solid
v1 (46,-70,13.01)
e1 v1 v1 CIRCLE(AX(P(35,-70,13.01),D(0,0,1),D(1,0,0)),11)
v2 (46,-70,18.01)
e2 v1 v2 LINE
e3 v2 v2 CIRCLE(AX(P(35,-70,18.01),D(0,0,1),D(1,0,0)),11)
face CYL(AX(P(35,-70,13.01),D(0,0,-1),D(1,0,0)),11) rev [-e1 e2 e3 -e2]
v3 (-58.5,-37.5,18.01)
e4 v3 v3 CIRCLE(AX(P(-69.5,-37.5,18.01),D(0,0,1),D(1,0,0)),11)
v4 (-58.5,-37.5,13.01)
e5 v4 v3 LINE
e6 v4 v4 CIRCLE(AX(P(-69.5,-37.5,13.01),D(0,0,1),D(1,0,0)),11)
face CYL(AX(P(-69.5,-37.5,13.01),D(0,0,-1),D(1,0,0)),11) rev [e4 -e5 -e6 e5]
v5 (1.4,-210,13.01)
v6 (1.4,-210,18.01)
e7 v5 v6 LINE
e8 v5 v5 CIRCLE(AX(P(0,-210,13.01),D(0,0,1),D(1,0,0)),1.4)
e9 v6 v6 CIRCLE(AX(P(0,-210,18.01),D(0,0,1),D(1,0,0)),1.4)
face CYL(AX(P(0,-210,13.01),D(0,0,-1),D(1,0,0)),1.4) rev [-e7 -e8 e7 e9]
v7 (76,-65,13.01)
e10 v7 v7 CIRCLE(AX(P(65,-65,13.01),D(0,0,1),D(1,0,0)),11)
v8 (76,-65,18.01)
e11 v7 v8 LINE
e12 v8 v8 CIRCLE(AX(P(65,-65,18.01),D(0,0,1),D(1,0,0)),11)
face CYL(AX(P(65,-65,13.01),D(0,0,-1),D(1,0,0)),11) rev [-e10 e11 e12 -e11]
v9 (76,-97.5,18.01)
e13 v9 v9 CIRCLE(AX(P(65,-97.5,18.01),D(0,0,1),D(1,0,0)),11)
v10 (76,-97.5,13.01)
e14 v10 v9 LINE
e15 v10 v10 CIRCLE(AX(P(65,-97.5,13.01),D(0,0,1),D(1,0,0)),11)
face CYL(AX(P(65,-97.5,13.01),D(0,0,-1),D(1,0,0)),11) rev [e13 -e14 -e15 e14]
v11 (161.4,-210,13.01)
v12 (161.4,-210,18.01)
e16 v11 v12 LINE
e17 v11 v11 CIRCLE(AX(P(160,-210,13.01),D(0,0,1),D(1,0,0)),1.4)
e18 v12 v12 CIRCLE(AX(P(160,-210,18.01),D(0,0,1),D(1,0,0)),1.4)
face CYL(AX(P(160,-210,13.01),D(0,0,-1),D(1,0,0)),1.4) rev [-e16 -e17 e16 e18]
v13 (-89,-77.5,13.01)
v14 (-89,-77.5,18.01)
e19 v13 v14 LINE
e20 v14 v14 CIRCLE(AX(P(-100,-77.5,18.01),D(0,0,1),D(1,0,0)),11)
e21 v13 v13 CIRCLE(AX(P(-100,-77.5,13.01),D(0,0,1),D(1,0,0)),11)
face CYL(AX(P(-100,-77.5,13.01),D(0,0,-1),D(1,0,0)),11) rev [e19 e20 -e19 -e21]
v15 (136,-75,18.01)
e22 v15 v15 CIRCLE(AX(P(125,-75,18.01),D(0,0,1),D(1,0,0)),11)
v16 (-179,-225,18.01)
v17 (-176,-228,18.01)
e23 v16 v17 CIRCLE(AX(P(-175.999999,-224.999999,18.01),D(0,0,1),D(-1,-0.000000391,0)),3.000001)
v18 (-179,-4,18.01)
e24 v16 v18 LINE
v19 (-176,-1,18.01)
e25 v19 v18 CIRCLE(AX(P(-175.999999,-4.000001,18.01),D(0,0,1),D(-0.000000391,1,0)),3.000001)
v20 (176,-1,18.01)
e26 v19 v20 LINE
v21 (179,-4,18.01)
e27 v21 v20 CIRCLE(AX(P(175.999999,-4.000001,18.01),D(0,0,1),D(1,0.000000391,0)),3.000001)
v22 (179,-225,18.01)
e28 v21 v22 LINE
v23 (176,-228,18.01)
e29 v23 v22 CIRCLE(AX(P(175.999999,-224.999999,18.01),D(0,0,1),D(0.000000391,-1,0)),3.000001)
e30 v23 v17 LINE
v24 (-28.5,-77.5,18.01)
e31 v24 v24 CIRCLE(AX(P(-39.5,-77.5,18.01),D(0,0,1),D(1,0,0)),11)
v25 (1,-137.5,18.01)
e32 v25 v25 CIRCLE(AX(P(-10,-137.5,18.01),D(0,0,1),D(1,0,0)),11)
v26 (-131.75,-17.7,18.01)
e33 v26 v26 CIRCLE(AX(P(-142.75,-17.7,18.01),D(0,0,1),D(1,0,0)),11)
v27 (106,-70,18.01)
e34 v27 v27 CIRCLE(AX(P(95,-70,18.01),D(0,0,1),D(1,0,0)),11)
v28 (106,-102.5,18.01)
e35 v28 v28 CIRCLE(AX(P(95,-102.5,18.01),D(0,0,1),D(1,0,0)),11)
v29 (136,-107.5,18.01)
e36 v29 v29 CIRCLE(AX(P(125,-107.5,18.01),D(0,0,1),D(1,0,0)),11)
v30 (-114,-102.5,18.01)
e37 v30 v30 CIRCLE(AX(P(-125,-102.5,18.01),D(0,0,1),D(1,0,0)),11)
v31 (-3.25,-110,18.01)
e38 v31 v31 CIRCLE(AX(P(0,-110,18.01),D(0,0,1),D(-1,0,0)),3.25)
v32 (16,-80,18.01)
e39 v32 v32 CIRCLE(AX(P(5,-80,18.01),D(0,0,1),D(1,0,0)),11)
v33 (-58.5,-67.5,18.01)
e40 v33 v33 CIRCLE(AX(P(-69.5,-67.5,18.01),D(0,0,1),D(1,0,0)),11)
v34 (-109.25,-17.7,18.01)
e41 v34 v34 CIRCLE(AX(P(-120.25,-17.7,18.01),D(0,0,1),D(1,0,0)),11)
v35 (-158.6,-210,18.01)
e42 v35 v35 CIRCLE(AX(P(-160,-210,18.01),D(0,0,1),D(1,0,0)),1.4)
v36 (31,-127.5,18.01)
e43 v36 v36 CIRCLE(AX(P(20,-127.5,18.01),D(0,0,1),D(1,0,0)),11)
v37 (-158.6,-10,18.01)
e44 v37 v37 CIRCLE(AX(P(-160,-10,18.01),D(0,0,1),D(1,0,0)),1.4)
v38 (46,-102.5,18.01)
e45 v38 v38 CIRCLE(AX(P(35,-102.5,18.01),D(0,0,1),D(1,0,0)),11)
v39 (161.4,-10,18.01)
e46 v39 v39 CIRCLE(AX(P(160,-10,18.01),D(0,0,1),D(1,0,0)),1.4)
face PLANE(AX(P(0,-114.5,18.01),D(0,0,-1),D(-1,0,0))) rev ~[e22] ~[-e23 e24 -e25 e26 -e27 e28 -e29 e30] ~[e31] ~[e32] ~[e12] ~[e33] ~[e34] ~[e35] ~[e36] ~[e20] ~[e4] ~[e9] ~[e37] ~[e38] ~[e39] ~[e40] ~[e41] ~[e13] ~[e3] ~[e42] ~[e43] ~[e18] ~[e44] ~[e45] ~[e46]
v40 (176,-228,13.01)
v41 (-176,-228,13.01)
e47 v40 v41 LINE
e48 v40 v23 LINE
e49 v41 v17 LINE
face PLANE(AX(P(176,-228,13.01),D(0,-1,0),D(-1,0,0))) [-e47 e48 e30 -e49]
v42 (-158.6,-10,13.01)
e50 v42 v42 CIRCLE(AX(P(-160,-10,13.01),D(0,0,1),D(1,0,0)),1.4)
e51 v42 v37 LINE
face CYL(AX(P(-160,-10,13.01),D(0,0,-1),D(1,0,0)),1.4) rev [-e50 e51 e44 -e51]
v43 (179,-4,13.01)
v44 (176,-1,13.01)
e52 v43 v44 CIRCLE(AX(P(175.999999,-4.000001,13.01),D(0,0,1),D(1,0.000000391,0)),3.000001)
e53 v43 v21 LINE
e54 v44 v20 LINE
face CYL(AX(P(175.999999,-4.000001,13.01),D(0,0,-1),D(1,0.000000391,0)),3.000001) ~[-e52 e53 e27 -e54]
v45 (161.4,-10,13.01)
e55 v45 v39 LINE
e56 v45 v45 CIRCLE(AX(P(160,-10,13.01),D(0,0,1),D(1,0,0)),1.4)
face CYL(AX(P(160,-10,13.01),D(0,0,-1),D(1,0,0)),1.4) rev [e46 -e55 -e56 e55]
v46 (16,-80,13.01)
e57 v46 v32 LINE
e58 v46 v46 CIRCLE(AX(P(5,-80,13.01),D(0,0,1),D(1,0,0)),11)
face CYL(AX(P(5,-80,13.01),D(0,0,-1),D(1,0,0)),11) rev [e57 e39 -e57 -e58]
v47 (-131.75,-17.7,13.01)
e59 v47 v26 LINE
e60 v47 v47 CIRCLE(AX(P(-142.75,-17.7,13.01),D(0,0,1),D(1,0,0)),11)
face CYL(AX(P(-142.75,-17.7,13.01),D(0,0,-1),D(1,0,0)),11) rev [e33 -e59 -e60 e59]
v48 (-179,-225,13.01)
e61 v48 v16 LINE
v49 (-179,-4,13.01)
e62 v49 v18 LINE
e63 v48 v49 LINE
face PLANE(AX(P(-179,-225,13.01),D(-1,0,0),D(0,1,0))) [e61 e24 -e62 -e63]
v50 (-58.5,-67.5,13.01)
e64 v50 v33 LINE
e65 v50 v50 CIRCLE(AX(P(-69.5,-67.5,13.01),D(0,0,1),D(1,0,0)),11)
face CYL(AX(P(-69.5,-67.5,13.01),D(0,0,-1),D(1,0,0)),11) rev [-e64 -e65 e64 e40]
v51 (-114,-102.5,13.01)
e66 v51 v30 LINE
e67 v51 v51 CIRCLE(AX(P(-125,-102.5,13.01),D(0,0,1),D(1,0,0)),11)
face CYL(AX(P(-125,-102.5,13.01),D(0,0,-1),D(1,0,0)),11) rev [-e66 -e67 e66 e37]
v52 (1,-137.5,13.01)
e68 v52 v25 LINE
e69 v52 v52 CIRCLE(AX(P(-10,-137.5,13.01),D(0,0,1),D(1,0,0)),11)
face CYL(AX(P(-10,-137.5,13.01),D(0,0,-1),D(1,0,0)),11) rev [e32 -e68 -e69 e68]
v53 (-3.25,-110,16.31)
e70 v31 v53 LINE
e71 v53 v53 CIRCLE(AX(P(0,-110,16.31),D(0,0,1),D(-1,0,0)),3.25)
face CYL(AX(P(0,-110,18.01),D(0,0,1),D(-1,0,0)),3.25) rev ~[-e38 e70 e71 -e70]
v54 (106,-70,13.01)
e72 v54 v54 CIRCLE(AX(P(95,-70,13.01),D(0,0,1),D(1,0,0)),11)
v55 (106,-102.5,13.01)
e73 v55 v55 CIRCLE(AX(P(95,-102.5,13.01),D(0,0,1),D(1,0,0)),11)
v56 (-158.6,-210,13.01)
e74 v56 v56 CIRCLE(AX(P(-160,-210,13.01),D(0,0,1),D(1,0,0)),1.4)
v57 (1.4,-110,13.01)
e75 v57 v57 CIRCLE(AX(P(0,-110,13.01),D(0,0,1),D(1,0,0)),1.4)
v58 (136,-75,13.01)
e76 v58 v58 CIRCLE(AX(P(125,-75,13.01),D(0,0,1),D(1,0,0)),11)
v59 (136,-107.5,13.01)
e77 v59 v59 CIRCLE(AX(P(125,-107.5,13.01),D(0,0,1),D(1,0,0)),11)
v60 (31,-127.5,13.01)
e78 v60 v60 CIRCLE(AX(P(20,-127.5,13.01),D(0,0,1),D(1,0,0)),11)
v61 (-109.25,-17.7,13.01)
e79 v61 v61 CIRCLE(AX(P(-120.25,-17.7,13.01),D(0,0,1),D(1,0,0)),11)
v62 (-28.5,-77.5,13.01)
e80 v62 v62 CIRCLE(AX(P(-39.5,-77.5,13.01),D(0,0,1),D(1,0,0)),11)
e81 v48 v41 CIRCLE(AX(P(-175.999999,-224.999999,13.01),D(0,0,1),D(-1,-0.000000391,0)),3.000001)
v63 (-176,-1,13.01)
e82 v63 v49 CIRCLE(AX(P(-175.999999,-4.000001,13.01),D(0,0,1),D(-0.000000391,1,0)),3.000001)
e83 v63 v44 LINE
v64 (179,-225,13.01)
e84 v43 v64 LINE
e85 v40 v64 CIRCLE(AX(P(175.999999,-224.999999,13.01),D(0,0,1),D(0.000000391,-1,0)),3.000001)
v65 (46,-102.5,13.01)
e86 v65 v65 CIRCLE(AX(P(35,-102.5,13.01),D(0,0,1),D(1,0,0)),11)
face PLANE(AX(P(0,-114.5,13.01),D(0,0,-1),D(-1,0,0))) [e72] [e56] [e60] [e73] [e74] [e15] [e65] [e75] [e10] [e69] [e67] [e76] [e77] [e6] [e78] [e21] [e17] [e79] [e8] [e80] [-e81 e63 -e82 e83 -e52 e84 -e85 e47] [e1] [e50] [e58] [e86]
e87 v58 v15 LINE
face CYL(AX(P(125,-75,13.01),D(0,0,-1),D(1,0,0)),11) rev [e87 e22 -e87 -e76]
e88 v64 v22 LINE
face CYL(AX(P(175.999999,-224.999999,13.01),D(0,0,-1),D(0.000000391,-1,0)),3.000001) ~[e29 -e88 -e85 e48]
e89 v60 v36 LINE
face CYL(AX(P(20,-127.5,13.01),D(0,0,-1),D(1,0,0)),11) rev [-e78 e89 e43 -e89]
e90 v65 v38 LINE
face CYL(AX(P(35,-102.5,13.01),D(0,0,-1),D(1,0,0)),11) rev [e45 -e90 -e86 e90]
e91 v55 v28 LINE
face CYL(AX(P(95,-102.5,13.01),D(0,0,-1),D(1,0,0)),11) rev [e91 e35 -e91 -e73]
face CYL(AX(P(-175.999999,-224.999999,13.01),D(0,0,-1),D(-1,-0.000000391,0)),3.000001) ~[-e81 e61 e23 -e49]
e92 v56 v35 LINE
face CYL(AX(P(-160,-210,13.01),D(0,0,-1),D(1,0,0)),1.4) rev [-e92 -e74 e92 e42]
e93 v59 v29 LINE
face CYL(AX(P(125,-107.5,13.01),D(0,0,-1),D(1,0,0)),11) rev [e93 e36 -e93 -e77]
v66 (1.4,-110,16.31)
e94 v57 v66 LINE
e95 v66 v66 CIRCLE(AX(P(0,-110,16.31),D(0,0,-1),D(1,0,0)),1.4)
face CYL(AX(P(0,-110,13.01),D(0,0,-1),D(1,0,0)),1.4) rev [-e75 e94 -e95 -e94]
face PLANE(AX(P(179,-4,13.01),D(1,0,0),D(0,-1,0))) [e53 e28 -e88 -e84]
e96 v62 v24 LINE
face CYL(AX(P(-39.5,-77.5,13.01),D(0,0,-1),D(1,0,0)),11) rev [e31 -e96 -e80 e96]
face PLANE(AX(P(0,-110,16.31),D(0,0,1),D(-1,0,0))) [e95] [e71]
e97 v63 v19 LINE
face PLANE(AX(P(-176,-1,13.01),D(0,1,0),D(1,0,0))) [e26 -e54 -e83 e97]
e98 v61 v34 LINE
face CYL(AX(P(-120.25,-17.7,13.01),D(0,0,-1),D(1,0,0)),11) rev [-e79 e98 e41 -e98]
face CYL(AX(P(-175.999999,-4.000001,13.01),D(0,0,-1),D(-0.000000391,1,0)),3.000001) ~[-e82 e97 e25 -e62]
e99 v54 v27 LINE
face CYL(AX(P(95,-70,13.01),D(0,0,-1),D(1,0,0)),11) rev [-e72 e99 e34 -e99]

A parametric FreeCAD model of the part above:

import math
import FreeCAD as App
import Part
import Sketcher
Q = App.Units.Quantity

doc = App.newDocument("Part")
body = doc.addObject("PartDesign::Body", "Body")

# Sketch on XY plane
sketch1 = body.newObject("Sketcher::SketchObject", "Sketch")
sketch1.AttachmentSupport = (doc.getObject("XY_Plane"), [""])
sketch1.MapMode = "FlatFace"
sketch1.addGeometry([
    Part.LineSegment(App.Vector(176, -1, 0), App.Vector(-176, -1, 0)),  # 0
    Part.ArcOfCircle(Part.Circle(App.Vector(-175.999999, -4.000001, 0), App.Vector(0, 0, 1), 3.000001), math.radians(90.000022), math.radians(179.999978)),  # 1
    Part.LineSegment(App.Vector(-179, -4, 0), App.Vector(-179, -225, 0)),  # 2
    Part.ArcOfCircle(Part.Circle(App.Vector(-175.999999, -224.999999, 0), App.Vector(0, 0, 1), 3.000001), math.radians(-179.999978), math.radians(-90.000022)),  # 3
    Part.LineSegment(App.Vector(-176, -228, 0), App.Vector(176, -228, 0)),  # 4
    Part.ArcOfCircle(Part.Circle(App.Vector(175.999999, -224.999999, 0), App.Vector(0, 0, 1), 3.000001), math.radians(-89.999978), math.radians(-0.000022)),  # 5
    Part.LineSegment(App.Vector(179, -225, 0), App.Vector(179, -4, 0)),  # 6
    Part.ArcOfCircle(Part.Circle(App.Vector(175.999999, -4.000001, 0), App.Vector(0, 0, 1), 3.000001), math.radians(0.000022), math.radians(89.999978)),  # 7
], False)
sketch1.addConstraint([
    Sketcher.Constraint("Tangent", 0, 2, 1, 1),
    Sketcher.Constraint("Tangent", 1, 2, 2, 1),
    Sketcher.Constraint("Tangent", 2, 2, 3, 1),
    Sketcher.Constraint("Tangent", 3, 2, 4, 1),
    Sketcher.Constraint("Tangent", 4, 2, 5, 1),
    Sketcher.Constraint("Tangent", 5, 2, 6, 1),
    Sketcher.Constraint("Tangent", 6, 2, 7, 1),
    Sketcher.Constraint("Tangent", 7, 2, 0, 1),
    Sketcher.Constraint("Horizontal", 0),
    Sketcher.Constraint("Vertical", 2),
    Sketcher.Constraint("Horizontal", 4),
    Sketcher.Constraint("Vertical", 6),
    Sketcher.Constraint("Equal", 1, 3),
    Sketcher.Constraint("Equal", 3, 5),
    Sketcher.Constraint("Equal", 5, 7),
    Sketcher.Constraint("Radius", 1, Q("3.000001 mm")),
    Sketcher.Constraint("DistanceX", 0, 2, 0, 1, Q("352 mm")),
    Sketcher.Constraint("DistanceY", 2, 2, 2, 1, Q("221 mm")),
    Sketcher.Constraint("DistanceX", 1, 3, -1, 1, Q("175.999999 mm")),
    Sketcher.Constraint("DistanceY", 1, 3, -1, 1, Q("4.000001 mm")),
])
pad1 = body.newObject("PartDesign::Pad", "Pad")
pad1.Profile = sketch1
pad1.Length = 5

# Sketch on XY plane
sketch2 = body.newObject("Sketcher::SketchObject", "Sketch001")
sketch2.AttachmentSupport = (doc.getObject("XY_Plane"), [""])
sketch2.MapMode = "FlatFace"
sketch2.addGeometry([
    Part.Circle(App.Vector(-142.75, -17.7, 0), App.Vector(0, 0, 1), 11),  # 0
    Part.Circle(App.Vector(-120.25, -17.7, 0), App.Vector(0, 0, 1), 11),  # 1
    Part.Circle(App.Vector(-69.5, -37.5, 0), App.Vector(0, 0, 1), 11),  # 2
    Part.Circle(App.Vector(-69.5, -67.5, 0), App.Vector(0, 0, 1), 11),  # 3
    Part.Circle(App.Vector(-100, -77.5, 0), App.Vector(0, 0, 1), 11),  # 4
    Part.Circle(App.Vector(-125, -102.5, 0), App.Vector(0, 0, 1), 11),  # 5
    Part.Circle(App.Vector(-39.5, -77.5, 0), App.Vector(0, 0, 1), 11),  # 6
    Part.Circle(App.Vector(5, -80, 0), App.Vector(0, 0, 1), 11),  # 7
    Part.Circle(App.Vector(35, -70, 0), App.Vector(0, 0, 1), 11),  # 8
    Part.Circle(App.Vector(65, -65, 0), App.Vector(0, 0, 1), 11),  # 9
    Part.Circle(App.Vector(95, -70, 0), App.Vector(0, 0, 1), 11),  # 10
    Part.Circle(App.Vector(125, -75, 0), App.Vector(0, 0, 1), 11),  # 11
    Part.Circle(App.Vector(-10, -137.5, 0), App.Vector(0, 0, 1), 11),  # 12
    Part.Circle(App.Vector(20, -127.5, 0), App.Vector(0, 0, 1), 11),  # 13
    Part.Circle(App.Vector(35, -102.5, 0), App.Vector(0, 0, 1), 11),  # 14
    Part.Circle(App.Vector(65, -97.5, 0), App.Vector(0, 0, 1), 11),  # 15
    Part.Circle(App.Vector(95, -102.5, 0), App.Vector(0, 0, 1), 11),  # 16
    Part.Circle(App.Vector(125, -107.5, 0), App.Vector(0, 0, 1), 11),  # 17
], False)
sketch2.addConstraint([
    Sketcher.Constraint("Equal", 0, 1),
    Sketcher.Constraint("Equal", 1, 2),
    Sketcher.Constraint("Equal", 2, 3),
    Sketcher.Constraint("Equal", 3, 4),
    Sketcher.Constraint("Equal", 4, 5),
    Sketcher.Constraint("Equal", 5, 6),
    Sketcher.Constraint("Equal", 6, 7),
    Sketcher.Constraint("Equal", 7, 8),
    Sketcher.Constraint("Equal", 8, 9),
    Sketcher.Constraint("Equal", 9, 10),
    Sketcher.Constraint("Equal", 10, 11),
    Sketcher.Constraint("Equal", 11, 12),
    Sketcher.Constraint("Equal", 12, 13),
    Sketcher.Constraint("Equal", 13, 14),
    Sketcher.Constraint("Equal", 14, 15),
    Sketcher.Constraint("Equal", 15, 16),
    Sketcher.Constraint("Equal", 16, 17),
    Sketcher.Constraint("Horizontal", 0, 3, 1, 3),
    Sketcher.Constraint("Horizontal", 4, 3, 6, 3),
    Sketcher.Constraint("Horizontal", 8, 3, 10, 3),
    Sketcher.Constraint("Horizontal", 5, 3, 14, 3),
    Sketcher.Constraint("Horizontal", 14, 3, 16, 3),
    Sketcher.Constraint("Vertical", 2, 3, 3, 3),
    Sketcher.Constraint("Vertical", 8, 3, 14, 3),
    Sketcher.Constraint("Vertical", 9, 3, 15, 3),
    Sketcher.Constraint("Vertical", 10, 3, 16, 3),
    Sketcher.Constraint("Vertical", 11, 3, 17, 3),
    Sketcher.Constraint("Diameter", 0, Q("22 mm")),
    Sketcher.Constraint("DistanceX", 4, 3, -1, 1, Q("100 mm")),
    Sketcher.Constraint("DistanceX", 5, 3, -1, 1, Q("125 mm")),
    Sketcher.Constraint("DistanceX", -1, 1, 7, 3, Q("5 mm")),
    Sketcher.Constraint("DistanceY", 7, 3, -1, 1, Q("80 mm")),
    Sketcher.Constraint("DistanceX", -1, 1, 8, 3, Q("35 mm")),
    Sketcher.Constraint("DistanceY", 8, 3, -1, 1, Q("70 mm")),
    Sketcher.Constraint("DistanceX", -1, 1, 9, 3, Q("65 mm")),
    Sketcher.Constraint("DistanceY", 9, 3, -1, 1, Q("65 mm")),
    Sketcher.Constraint("DistanceX", -1, 1, 10, 3, Q("95 mm")),
    Sketcher.Constraint("DistanceX", -1, 1, 11, 3, Q("125 mm")),
    Sketcher.Constraint("DistanceY", 11, 3, -1, 1, Q("75 mm")),
    Sketcher.Constraint("DistanceX", 12, 3, -1, 1, Q("10 mm")),
    Sketcher.Constraint("DistanceX", -1, 1, 13, 3, Q("20 mm")),
    Sketcher.Constraint("DistanceY", 3, 3, 2, 3, Q("30 mm")),
    Sketcher.Constraint("DistanceY", 4, 3, 3, 3, Q("10 mm")),
    Sketcher.Constraint("DistanceY", 5, 3, 4, 3, Q("25 mm")),
    Sketcher.Constraint("DistanceX", 3, 3, 6, 3, Q("30 mm")),
    Sketcher.Constraint("DistanceY", 12, 3, 6, 3, Q("60 mm")),
    Sketcher.Constraint("DistanceY", 12, 3, 13, 3, Q("10 mm")),
    Sketcher.Constraint("DistanceY", 14, 3, 15, 3, Q("5 mm")),
    Sketcher.Constraint("DistanceY", 17, 3, 16, 3, Q("5 mm")),
    Sketcher.Constraint("DistanceY", 0, 3, -1, 1, Q("17.7 mm")),
    Sketcher.Constraint("DistanceX", 2, 3, -1, 1, Q("69.5 mm")),
    Sketcher.Constraint("DistanceY", 2, 3, -1, 1, Q("37.5 mm")),
    Sketcher.Constraint("DistanceX", 0, 3, 1, 3, Q("22.5 mm")),
    Sketcher.Constraint("DistanceX", 0, 3, -1, 1, Q("142.75 mm")),
])
pocket1 = body.newObject("PartDesign::Pocket", "Pocket")
pocket1.Profile = sketch2
pocket1.Length = 5
pocket1.Reversed = True

# Sketch on XY plane
sketch3 = body.newObject("Sketcher::SketchObject", "Sketch002")
sketch3.AttachmentSupport = (doc.getObject("XY_Plane"), [""])
sketch3.MapMode = "FlatFace"
sketch3.addGeometry([
    Part.Circle(App.Vector(0, -210, 0), App.Vector(0, 0, 1), 1.4),  # 0
    Part.Circle(App.Vector(160, -210, 0), App.Vector(0, 0, 1), 1.4),  # 1
    Part.Circle(App.Vector(160, -10, 0), App.Vector(0, 0, 1), 1.4),  # 2
    Part.Circle(App.Vector(-160, -210, 0), App.Vector(0, 0, 1), 1.4),  # 3
    Part.Circle(App.Vector(-160, -10, 0), App.Vector(0, 0, 1), 1.4),  # 4
    Part.Circle(App.Vector(0, -110, 0), App.Vector(0, 0, 1), 1.4),  # 5
], False)
sketch3.addConstraint([
    Sketcher.Constraint("Equal", 0, 1),
    Sketcher.Constraint("Equal", 1, 2),
    Sketcher.Constraint("Equal", 2, 3),
    Sketcher.Constraint("Equal", 3, 4),
    Sketcher.Constraint("Equal", 4, 5),
    Sketcher.Constraint("Symmetric", 1, 3, 3, 3, -2),
    Sketcher.Constraint("Symmetric", 2, 3, 4, 3, -2),
    Sketcher.Constraint("PointOnObject", 0, 3, -2),
    Sketcher.Constraint("PointOnObject", 5, 3, -2),
    Sketcher.Constraint("Horizontal", 0, 3, 1, 3),
    Sketcher.Constraint("Vertical", 1, 3, 2, 3),
    Sketcher.Constraint("Diameter", 0, Q("2.8 mm")),
    Sketcher.Constraint("DistanceY", 0, 3, -1, 1, Q("210 mm")),
    Sketcher.Constraint("DistanceX", -1, 1, 1, 3, Q("160 mm")),
    Sketcher.Constraint("DistanceY", 2, 3, -1, 1, Q("10 mm")),
    Sketcher.Constraint("DistanceY", 5, 3, -1, 1, Q("110 mm")),
])
pocket2 = body.newObject("PartDesign::Pocket", "Pocket001")
pocket2.Profile = sketch3
pocket2.Length = 5
pocket2.Reversed = True

# Sketch on XY plane
sketch4 = body.newObject("Sketcher::SketchObject", "Sketch003")
sketch4.AttachmentSupport = (doc.getObject("XY_Plane"), [""])
sketch4.MapMode = "FlatFace"
sketch4.AttachmentOffset = App.Placement(App.Vector(0, 0, 5), App.Rotation())
sketch4.addGeometry(Part.Circle(App.Vector(0, -110, 0), App.Vector(0, 0, 1), 3.25), False)
sketch4.addConstraint([
    Sketcher.Constraint("PointOnObject", 0, 3, -2),
    Sketcher.Constraint("Diameter", 0, Q("6.5 mm")),
    Sketcher.Constraint("DistanceY", 0, 3, -1, 1, Q("110 mm")),
])
pocket3 = body.newObject("PartDesign::Pocket", "Pocket002")
pocket3.Profile = sketch4
pocket3.Length = 1.7
body2 = doc.addObject("PartDesign::Body", "Body001")
doc.recompute()

body.Placement = App.Placement(App.Vector(0, 0, 13.01), App.Rotation(App.Vector(0, 0, 1), 0))
boolean = body2.newObject("PartDesign::Boolean", "Boolean")
boolean.Type = "Fuse"
boolean.addObjects([body])

doc.recompute()
